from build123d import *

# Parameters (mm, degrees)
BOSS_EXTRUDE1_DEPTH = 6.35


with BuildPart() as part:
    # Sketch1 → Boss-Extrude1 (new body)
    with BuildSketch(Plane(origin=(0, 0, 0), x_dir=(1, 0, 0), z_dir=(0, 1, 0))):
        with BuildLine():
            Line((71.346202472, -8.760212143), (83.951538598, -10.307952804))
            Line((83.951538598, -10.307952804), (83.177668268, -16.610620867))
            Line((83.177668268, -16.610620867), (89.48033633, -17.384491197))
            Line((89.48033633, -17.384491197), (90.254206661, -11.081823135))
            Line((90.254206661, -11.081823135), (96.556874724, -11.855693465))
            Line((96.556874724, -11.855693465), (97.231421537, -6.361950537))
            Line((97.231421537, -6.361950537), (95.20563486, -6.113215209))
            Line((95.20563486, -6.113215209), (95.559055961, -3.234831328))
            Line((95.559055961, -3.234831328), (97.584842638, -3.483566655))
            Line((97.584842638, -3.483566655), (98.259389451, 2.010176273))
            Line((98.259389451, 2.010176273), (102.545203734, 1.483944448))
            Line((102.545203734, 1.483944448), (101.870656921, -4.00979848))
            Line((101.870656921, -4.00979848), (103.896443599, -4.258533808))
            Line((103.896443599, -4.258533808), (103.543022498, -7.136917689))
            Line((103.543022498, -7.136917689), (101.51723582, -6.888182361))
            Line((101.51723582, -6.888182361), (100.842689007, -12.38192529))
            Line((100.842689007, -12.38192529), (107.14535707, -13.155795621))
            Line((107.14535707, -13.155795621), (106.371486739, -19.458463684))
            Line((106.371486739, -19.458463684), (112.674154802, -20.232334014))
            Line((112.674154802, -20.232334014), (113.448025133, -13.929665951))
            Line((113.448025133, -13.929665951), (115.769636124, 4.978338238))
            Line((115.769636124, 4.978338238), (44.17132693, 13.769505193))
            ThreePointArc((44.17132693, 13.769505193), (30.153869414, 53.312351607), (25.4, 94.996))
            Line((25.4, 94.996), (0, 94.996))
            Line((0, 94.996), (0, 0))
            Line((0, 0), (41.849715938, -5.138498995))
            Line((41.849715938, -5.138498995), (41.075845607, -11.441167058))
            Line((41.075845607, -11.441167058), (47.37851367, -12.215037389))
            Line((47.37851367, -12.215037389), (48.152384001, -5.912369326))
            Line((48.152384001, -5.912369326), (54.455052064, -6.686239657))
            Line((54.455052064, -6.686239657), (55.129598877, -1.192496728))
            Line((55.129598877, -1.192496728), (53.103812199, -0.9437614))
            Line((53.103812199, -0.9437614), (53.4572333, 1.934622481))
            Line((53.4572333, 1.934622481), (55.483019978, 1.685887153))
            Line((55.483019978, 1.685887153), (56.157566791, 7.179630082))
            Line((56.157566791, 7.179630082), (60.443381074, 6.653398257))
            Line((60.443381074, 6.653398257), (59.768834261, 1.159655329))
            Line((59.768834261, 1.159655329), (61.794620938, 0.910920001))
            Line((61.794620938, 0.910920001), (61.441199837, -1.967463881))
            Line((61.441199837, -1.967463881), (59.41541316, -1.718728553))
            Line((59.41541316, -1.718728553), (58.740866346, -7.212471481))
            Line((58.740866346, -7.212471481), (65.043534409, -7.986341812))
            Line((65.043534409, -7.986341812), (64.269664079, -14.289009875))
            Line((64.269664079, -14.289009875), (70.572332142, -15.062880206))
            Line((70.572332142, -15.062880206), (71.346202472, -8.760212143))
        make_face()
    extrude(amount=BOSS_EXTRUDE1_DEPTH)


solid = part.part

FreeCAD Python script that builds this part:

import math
import FreeCAD as App
import Part
import Sketcher
from FreeCAD import Vector
Q = App.Units.Quantity

doc = App.newDocument("Part")
body = doc.addObject("PartDesign::Body", "Body")

sketch1 = body.newObject("Sketcher::SketchObject", "Sketch")
sketch1.AttachmentSupport = (doc.getObject("XZ_Plane"), [""])
sketch1.MapMode = "FlatFace"
sketch1.addGeometry([
    Part.LineSegment(Vector(71.3, 8.8, 0), Vector(84, 10.3, 0)),
    Part.LineSegment(Vector(84, 10.3, 0), Vector(83.2, 16.6, 0)),
    Part.LineSegment(Vector(83.2, 16.6, 0), Vector(89.5, 17.4, 0)),
    Part.LineSegment(Vector(89.5, 17.4, 0), Vector(90.3, 11.1, 0)),
    Part.LineSegment(Vector(90.3, 11.1, 0), Vector(96.6, 11.9, 0)),
    Part.LineSegment(Vector(96.6, 11.9, 0), Vector(97.2, 6.4, 0)),
    Part.LineSegment(Vector(97.2, 6.4, 0), Vector(95.2, 6.1, 0)),
    Part.LineSegment(Vector(95.2, 6.1, 0), Vector(95.6, 3.2, 0)),
    Part.LineSegment(Vector(95.6, 3.2, 0), Vector(97.6, 3.5, 0)),
    Part.LineSegment(Vector(97.6, 3.5, 0), Vector(98.3, -2, 0)),
    Part.LineSegment(Vector(98.3, -2, 0), Vector(102.5, -1.5, 0)),
    Part.LineSegment(Vector(102.5, -1.5, 0), Vector(101.9, 4, 0)),
    Part.LineSegment(Vector(101.9, 4, 0), Vector(103.9, 4.3, 0)),
    Part.LineSegment(Vector(103.9, 4.3, 0), Vector(103.5, 7.1, 0)),
    Part.LineSegment(Vector(103.5, 7.1, 0), Vector(101.5, 6.9, 0)),
    Part.LineSegment(Vector(101.5, 6.9, 0), Vector(100.8, 12.4, 0)),
    Part.LineSegment(Vector(100.8, 12.4, 0), Vector(107.1, 13.2, 0)),
    Part.LineSegment(Vector(107.1, 13.2, 0), Vector(106.4, 19.5, 0)),
    Part.LineSegment(Vector(106.4, 19.5, 0), Vector(112.7, 20.2, 0)),
    Part.LineSegment(Vector(112.7, 20.2, 0), Vector(113.4, 13.9, 0)),
    Part.LineSegment(Vector(113.4, 13.9, 0), Vector(115.8, -5, 0)),
    Part.LineSegment(Vector(115.8, -5, 0), Vector(44.2, -13.8, 0)),
    Part.ArcOfCircle(Part.Circle(Vector(210.5, -95, 0), Vector(0, 0, 1), 185.1), math.radians(154), math.radians(180)),
    Part.LineSegment(Vector(25.4, -95, 0), Vector(0, -95, 0)),
    Part.LineSegment(Vector(0, -95, 0), Vector(0, 0, 0)),
    Part.LineSegment(Vector(0, 0, 0), Vector(41.8, 5.1, 0)),
    Part.LineSegment(Vector(41.8, 5.1, 0), Vector(41.1, 11.4, 0)),
    Part.LineSegment(Vector(41.1, 11.4, 0), Vector(47.4, 12.2, 0)),
    Part.LineSegment(Vector(47.4, 12.2, 0), Vector(48.2, 5.9, 0)),
    Part.LineSegment(Vector(48.2, 5.9, 0), Vector(54.5, 6.7, 0)),
    Part.LineSegment(Vector(54.5, 6.7, 0), Vector(55.1, 1.2, 0)),
    Part.LineSegment(Vector(55.1, 1.2, 0), Vector(53.1, 0.9, 0)),
    Part.LineSegment(Vector(53.1, 0.9, 0), Vector(53.5, -1.9, 0)),
    Part.LineSegment(Vector(53.5, -1.9, 0), Vector(55.5, -1.7, 0)),
    Part.LineSegment(Vector(55.5, -1.7, 0), Vector(56.2, -7.2, 0)),
    Part.LineSegment(Vector(56.2, -7.2, 0), Vector(60.4, -6.7, 0)),
    Part.LineSegment(Vector(60.4, -6.7, 0), Vector(59.8, -1.2, 0)),
    Part.LineSegment(Vector(59.8, -1.2, 0), Vector(61.8, -0.9, 0)),
    Part.LineSegment(Vector(61.8, -0.9, 0), Vector(61.4, 2, 0)),
    Part.LineSegment(Vector(61.4, 2, 0), Vector(59.4, 1.7, 0)),
    Part.LineSegment(Vector(59.4, 1.7, 0), Vector(58.7, 7.2, 0)),
    Part.LineSegment(Vector(58.7, 7.2, 0), Vector(65, 8, 0)),
    Part.LineSegment(Vector(65, 8, 0), Vector(64.3, 14.3, 0)),
    Part.LineSegment(Vector(64.3, 14.3, 0), Vector(70.6, 15.1, 0)),
    Part.LineSegment(Vector(70.6, 15.1, 0), Vector(71.3, 8.8, 0)),
], False)
sketch1.addConstraint([
    Sketcher.Constraint("Coincident", 0, 2, 1, 1),
    Sketcher.Constraint("Coincident", 1, 2, 2, 1),
    Sketcher.Constraint("Coincident", 2, 2, 3, 1),
    Sketcher.Constraint("Coincident", 3, 2, 4, 1),
    Sketcher.Constraint("Coincident", 4, 2, 5, 1),
    Sketcher.Constraint("Coincident", 5, 2, 6, 1),
    Sketcher.Constraint("Coincident", 6, 2, 7, 1),
    Sketcher.Constraint("Coincident", 7, 2, 8, 1),
    Sketcher.Constraint("Coincident", 8, 2, 9, 1),
    Sketcher.Constraint("Coincident", 9, 2, 10, 1),
    Sketcher.Constraint("Coincident", 10, 2, 11, 1),
    Sketcher.Constraint("Coincident", 11, 2, 12, 1),
    Sketcher.Constraint("Coincident", 12, 2, 13, 1),
    Sketcher.Constraint("Coincident", 13, 2, 14, 1),
    Sketcher.Constraint("Coincident", 14, 2, 15, 1),
    Sketcher.Constraint("Coincident", 15, 2, 16, 1),
    Sketcher.Constraint("Coincident", 16, 2, 17, 1),
    Sketcher.Constraint("Coincident", 17, 2, 18, 1),
    Sketcher.Constraint("Coincident", 18, 2, 19, 1),
    Sketcher.Constraint("Coincident", 19, 2, 20, 1),
    Sketcher.Constraint("Coincident", 20, 2, 21, 1),
    Sketcher.Constraint("Coincident", 21, 2, 22, 1),
    Sketcher.Constraint("Coincident", 22, 2, 23, 1),
    Sketcher.Constraint("Coincident", 23, 2, 24, 1),
    Sketcher.Constraint("Coincident", 24, 2, 25, 1),
    Sketcher.Constraint("Coincident", 25, 2, 26, 1),
    Sketcher.Constraint("Coincident", 26, 2, 27, 1),
    Sketcher.Constraint("Coincident", 27, 2, 28, 1),
    Sketcher.Constraint("Coincident", 28, 2, 29, 1),
    Sketcher.Constraint("Coincident", 29, 2, 30, 1),
    Sketcher.Constraint("Coincident", 30, 2, 31, 1),
    Sketcher.Constraint("Coincident", 31, 2, 32, 1),
    Sketcher.Constraint("Coincident", 32, 2, 33, 1),
    Sketcher.Constraint("Coincident", 33, 2, 34, 1),
    Sketcher.Constraint("Coincident", 34, 2, 35, 1),
    Sketcher.Constraint("Coincident", 35, 2, 36, 1),
    Sketcher.Constraint("Coincident", 36, 2, 37, 1),
    Sketcher.Constraint("Coincident", 37, 2, 38, 1),
    Sketcher.Constraint("Coincident", 38, 2, 39, 1),
    Sketcher.Constraint("Coincident", 39, 2, 40, 1),
    Sketcher.Constraint("Coincident", 40, 2, 41, 1),
    Sketcher.Constraint("Coincident", 41, 2, 42, 1),
    Sketcher.Constraint("Coincident", 42, 2, 43, 1),
    Sketcher.Constraint("Coincident", 43, 2, 44, 1),
    Sketcher.Constraint("Coincident", 44, 2, 0, 1),
    Sketcher.Constraint("Horizontal", 23),
    Sketcher.Constraint("Vertical", 24),
    Sketcher.Constraint("Coincident", 24, 2, -1, 1),
    Sketcher.Constraint("Perpendicular", 0, 1),
    Sketcher.Constraint("Perpendicular", 1, 2),
    Sketcher.Constraint("Perpendicular", 2, 3),
    Sketcher.Constraint("Perpendicular", 3, 4),
    Sketcher.Constraint("Perpendicular", 4, 5),
    Sketcher.Constraint("Perpendicular", 5, 6),
    Sketcher.Constraint("Perpendicular", 6, 7),
    Sketcher.Constraint("Perpendicular", 7, 8),
    Sketcher.Constraint("Perpendicular", 8, 9),
    Sketcher.Constraint("Perpendicular", 9, 10),
    Sketcher.Constraint("Perpendicular", 10, 11),
    Sketcher.Constraint("Perpendicular", 11, 12),
    Sketcher.Constraint("Perpendicular", 12, 13),
    Sketcher.Constraint("Perpendicular", 13, 14),
    Sketcher.Constraint("Perpendicular", 14, 15),
    Sketcher.Constraint("Perpendicular", 15, 16),
    Sketcher.Constraint("Perpendicular", 16, 17),
    Sketcher.Constraint("Perpendicular", 17, 18),
    Sketcher.Constraint("Perpendicular", 18, 19),
    Sketcher.Constraint("Parallel", 19, 20),
    Sketcher.Constraint("Perpendicular", 20, 21),
    Sketcher.Constraint("Parallel", 21, 25),
    Sketcher.Constraint("Perpendicular", 25, 26),
    Sketcher.Constraint("Perpendicular", 26, 27),
    Sketcher.Constraint("Perpendicular", 27, 28),
    Sketcher.Constraint("Perpendicular", 28, 29),
    Sketcher.Constraint("Perpendicular", 29, 30),
    Sketcher.Constraint("Perpendicular", 30, 31),
    Sketcher.Constraint("Perpendicular", 31, 32),
    Sketcher.Constraint("Perpendicular", 32, 33),
    Sketcher.Constraint("Perpendicular", 33, 34),
    Sketcher.Constraint("Perpendicular", 34, 35),
    Sketcher.Constraint("Perpendicular", 35, 36),
    Sketcher.Constraint("Perpendicular", 36, 37),
    Sketcher.Constraint("Perpendicular", 37, 38),
    Sketcher.Constraint("Perpendicular", 38, 39),
    Sketcher.Constraint("Perpendicular", 39, 40),
    Sketcher.Constraint("Perpendicular", 40, 41),
    Sketcher.Constraint("Perpendicular", 41, 42),
    Sketcher.Constraint("Perpendicular", 42, 43),
    Sketcher.Constraint("Perpendicular", 43, 44),
    Sketcher.Constraint("Equal", 1, 2),
    Sketcher.Constraint("Equal", 2, 3),
    Sketcher.Constraint("Equal", 3, 4),
    Sketcher.Constraint("Equal", 6, 8),
    Sketcher.Constraint("Equal", 5, 9),
    Sketcher.Constraint("Equal", 9, 11),
    Sketcher.Constraint("Equal", 8, 12),
    Sketcher.Constraint("Equal", 7, 13),
    Sketcher.Constraint("Equal", 12, 14),
    Sketcher.Constraint("Equal", 11, 15),
    Sketcher.Constraint("Equal", 4, 16),
    Sketcher.Constraint("Equal", 16, 17),
    Sketcher.Constraint("Equal", 17, 18),
    Sketcher.Constraint("Equal", 18, 19),
    Sketcher.Constraint("Equal", 19, 26),
    Sketcher.Constraint("Equal", 26, 27),
    Sketcher.Constraint("Equal", 27, 28),
    Sketcher.Constraint("Equal", 28, 29),
    Sketcher.Constraint("Equal", 15, 30),
    Sketcher.Constraint("Equal", 14, 31),
    Sketcher.Constraint("Equal", 13, 32),
    Sketcher.Constraint("Equal", 31, 33),
    Sketcher.Constraint("Equal", 30, 34),
    Sketcher.Constraint("Equal", 10, 35),
    Sketcher.Constraint("Equal", 34, 36),
    Sketcher.Constraint("Equal", 33, 37),
    Sketcher.Constraint("Equal", 32, 38),
    Sketcher.Constraint("Equal", 37, 39),
    Sketcher.Constraint("Equal", 36, 40),
    Sketcher.Constraint("Equal", 29, 41),
    Sketcher.Constraint("Equal", 41, 42),
    Sketcher.Constraint("Equal", 42, 43),
    Sketcher.Constraint("Equal", 43, 44),
    Sketcher.Constraint("DistanceX", 23, 2, 23, 1, Q("1 in")),
    Sketcher.Constraint("Angle", 0, Q("7 deg")),
    Sketcher.Constraint("Distance", 0, Q("0.5 in")),
    Sketcher.Constraint("DistanceY", 24, 1, 24, 2, Q("3.74 in")),
    Sketcher.Constraint("Distance", 1, Q("0.25 in")),
    Sketcher.Constraint("Distance", 10, Q("0.17 in")),
    Sketcher.Constraint("Distance", 20, Q("0.75 in")),
    Sketcher.Constraint("Distance", 21, Q("2.84 in")),
    Sketcher.Constraint("Distance", 25, Q("1.66 in")),
    Sketcher.Constraint("DistanceY", 22, 3, -1, 1, Q("3.74 in")),
    Sketcher.Constraint("Distance", 5, 5.535),
    Sketcher.Constraint("Distance", 6, 2.041),
    Sketcher.Constraint("Distance", 7, 2.9),
])
pad1 = body.newObject("PartDesign::Pad", "Pad")
pad1.Profile = sketch1
pad1.Length = Q("0.25 in")
pad1.Reversed = True

doc.recompute()
